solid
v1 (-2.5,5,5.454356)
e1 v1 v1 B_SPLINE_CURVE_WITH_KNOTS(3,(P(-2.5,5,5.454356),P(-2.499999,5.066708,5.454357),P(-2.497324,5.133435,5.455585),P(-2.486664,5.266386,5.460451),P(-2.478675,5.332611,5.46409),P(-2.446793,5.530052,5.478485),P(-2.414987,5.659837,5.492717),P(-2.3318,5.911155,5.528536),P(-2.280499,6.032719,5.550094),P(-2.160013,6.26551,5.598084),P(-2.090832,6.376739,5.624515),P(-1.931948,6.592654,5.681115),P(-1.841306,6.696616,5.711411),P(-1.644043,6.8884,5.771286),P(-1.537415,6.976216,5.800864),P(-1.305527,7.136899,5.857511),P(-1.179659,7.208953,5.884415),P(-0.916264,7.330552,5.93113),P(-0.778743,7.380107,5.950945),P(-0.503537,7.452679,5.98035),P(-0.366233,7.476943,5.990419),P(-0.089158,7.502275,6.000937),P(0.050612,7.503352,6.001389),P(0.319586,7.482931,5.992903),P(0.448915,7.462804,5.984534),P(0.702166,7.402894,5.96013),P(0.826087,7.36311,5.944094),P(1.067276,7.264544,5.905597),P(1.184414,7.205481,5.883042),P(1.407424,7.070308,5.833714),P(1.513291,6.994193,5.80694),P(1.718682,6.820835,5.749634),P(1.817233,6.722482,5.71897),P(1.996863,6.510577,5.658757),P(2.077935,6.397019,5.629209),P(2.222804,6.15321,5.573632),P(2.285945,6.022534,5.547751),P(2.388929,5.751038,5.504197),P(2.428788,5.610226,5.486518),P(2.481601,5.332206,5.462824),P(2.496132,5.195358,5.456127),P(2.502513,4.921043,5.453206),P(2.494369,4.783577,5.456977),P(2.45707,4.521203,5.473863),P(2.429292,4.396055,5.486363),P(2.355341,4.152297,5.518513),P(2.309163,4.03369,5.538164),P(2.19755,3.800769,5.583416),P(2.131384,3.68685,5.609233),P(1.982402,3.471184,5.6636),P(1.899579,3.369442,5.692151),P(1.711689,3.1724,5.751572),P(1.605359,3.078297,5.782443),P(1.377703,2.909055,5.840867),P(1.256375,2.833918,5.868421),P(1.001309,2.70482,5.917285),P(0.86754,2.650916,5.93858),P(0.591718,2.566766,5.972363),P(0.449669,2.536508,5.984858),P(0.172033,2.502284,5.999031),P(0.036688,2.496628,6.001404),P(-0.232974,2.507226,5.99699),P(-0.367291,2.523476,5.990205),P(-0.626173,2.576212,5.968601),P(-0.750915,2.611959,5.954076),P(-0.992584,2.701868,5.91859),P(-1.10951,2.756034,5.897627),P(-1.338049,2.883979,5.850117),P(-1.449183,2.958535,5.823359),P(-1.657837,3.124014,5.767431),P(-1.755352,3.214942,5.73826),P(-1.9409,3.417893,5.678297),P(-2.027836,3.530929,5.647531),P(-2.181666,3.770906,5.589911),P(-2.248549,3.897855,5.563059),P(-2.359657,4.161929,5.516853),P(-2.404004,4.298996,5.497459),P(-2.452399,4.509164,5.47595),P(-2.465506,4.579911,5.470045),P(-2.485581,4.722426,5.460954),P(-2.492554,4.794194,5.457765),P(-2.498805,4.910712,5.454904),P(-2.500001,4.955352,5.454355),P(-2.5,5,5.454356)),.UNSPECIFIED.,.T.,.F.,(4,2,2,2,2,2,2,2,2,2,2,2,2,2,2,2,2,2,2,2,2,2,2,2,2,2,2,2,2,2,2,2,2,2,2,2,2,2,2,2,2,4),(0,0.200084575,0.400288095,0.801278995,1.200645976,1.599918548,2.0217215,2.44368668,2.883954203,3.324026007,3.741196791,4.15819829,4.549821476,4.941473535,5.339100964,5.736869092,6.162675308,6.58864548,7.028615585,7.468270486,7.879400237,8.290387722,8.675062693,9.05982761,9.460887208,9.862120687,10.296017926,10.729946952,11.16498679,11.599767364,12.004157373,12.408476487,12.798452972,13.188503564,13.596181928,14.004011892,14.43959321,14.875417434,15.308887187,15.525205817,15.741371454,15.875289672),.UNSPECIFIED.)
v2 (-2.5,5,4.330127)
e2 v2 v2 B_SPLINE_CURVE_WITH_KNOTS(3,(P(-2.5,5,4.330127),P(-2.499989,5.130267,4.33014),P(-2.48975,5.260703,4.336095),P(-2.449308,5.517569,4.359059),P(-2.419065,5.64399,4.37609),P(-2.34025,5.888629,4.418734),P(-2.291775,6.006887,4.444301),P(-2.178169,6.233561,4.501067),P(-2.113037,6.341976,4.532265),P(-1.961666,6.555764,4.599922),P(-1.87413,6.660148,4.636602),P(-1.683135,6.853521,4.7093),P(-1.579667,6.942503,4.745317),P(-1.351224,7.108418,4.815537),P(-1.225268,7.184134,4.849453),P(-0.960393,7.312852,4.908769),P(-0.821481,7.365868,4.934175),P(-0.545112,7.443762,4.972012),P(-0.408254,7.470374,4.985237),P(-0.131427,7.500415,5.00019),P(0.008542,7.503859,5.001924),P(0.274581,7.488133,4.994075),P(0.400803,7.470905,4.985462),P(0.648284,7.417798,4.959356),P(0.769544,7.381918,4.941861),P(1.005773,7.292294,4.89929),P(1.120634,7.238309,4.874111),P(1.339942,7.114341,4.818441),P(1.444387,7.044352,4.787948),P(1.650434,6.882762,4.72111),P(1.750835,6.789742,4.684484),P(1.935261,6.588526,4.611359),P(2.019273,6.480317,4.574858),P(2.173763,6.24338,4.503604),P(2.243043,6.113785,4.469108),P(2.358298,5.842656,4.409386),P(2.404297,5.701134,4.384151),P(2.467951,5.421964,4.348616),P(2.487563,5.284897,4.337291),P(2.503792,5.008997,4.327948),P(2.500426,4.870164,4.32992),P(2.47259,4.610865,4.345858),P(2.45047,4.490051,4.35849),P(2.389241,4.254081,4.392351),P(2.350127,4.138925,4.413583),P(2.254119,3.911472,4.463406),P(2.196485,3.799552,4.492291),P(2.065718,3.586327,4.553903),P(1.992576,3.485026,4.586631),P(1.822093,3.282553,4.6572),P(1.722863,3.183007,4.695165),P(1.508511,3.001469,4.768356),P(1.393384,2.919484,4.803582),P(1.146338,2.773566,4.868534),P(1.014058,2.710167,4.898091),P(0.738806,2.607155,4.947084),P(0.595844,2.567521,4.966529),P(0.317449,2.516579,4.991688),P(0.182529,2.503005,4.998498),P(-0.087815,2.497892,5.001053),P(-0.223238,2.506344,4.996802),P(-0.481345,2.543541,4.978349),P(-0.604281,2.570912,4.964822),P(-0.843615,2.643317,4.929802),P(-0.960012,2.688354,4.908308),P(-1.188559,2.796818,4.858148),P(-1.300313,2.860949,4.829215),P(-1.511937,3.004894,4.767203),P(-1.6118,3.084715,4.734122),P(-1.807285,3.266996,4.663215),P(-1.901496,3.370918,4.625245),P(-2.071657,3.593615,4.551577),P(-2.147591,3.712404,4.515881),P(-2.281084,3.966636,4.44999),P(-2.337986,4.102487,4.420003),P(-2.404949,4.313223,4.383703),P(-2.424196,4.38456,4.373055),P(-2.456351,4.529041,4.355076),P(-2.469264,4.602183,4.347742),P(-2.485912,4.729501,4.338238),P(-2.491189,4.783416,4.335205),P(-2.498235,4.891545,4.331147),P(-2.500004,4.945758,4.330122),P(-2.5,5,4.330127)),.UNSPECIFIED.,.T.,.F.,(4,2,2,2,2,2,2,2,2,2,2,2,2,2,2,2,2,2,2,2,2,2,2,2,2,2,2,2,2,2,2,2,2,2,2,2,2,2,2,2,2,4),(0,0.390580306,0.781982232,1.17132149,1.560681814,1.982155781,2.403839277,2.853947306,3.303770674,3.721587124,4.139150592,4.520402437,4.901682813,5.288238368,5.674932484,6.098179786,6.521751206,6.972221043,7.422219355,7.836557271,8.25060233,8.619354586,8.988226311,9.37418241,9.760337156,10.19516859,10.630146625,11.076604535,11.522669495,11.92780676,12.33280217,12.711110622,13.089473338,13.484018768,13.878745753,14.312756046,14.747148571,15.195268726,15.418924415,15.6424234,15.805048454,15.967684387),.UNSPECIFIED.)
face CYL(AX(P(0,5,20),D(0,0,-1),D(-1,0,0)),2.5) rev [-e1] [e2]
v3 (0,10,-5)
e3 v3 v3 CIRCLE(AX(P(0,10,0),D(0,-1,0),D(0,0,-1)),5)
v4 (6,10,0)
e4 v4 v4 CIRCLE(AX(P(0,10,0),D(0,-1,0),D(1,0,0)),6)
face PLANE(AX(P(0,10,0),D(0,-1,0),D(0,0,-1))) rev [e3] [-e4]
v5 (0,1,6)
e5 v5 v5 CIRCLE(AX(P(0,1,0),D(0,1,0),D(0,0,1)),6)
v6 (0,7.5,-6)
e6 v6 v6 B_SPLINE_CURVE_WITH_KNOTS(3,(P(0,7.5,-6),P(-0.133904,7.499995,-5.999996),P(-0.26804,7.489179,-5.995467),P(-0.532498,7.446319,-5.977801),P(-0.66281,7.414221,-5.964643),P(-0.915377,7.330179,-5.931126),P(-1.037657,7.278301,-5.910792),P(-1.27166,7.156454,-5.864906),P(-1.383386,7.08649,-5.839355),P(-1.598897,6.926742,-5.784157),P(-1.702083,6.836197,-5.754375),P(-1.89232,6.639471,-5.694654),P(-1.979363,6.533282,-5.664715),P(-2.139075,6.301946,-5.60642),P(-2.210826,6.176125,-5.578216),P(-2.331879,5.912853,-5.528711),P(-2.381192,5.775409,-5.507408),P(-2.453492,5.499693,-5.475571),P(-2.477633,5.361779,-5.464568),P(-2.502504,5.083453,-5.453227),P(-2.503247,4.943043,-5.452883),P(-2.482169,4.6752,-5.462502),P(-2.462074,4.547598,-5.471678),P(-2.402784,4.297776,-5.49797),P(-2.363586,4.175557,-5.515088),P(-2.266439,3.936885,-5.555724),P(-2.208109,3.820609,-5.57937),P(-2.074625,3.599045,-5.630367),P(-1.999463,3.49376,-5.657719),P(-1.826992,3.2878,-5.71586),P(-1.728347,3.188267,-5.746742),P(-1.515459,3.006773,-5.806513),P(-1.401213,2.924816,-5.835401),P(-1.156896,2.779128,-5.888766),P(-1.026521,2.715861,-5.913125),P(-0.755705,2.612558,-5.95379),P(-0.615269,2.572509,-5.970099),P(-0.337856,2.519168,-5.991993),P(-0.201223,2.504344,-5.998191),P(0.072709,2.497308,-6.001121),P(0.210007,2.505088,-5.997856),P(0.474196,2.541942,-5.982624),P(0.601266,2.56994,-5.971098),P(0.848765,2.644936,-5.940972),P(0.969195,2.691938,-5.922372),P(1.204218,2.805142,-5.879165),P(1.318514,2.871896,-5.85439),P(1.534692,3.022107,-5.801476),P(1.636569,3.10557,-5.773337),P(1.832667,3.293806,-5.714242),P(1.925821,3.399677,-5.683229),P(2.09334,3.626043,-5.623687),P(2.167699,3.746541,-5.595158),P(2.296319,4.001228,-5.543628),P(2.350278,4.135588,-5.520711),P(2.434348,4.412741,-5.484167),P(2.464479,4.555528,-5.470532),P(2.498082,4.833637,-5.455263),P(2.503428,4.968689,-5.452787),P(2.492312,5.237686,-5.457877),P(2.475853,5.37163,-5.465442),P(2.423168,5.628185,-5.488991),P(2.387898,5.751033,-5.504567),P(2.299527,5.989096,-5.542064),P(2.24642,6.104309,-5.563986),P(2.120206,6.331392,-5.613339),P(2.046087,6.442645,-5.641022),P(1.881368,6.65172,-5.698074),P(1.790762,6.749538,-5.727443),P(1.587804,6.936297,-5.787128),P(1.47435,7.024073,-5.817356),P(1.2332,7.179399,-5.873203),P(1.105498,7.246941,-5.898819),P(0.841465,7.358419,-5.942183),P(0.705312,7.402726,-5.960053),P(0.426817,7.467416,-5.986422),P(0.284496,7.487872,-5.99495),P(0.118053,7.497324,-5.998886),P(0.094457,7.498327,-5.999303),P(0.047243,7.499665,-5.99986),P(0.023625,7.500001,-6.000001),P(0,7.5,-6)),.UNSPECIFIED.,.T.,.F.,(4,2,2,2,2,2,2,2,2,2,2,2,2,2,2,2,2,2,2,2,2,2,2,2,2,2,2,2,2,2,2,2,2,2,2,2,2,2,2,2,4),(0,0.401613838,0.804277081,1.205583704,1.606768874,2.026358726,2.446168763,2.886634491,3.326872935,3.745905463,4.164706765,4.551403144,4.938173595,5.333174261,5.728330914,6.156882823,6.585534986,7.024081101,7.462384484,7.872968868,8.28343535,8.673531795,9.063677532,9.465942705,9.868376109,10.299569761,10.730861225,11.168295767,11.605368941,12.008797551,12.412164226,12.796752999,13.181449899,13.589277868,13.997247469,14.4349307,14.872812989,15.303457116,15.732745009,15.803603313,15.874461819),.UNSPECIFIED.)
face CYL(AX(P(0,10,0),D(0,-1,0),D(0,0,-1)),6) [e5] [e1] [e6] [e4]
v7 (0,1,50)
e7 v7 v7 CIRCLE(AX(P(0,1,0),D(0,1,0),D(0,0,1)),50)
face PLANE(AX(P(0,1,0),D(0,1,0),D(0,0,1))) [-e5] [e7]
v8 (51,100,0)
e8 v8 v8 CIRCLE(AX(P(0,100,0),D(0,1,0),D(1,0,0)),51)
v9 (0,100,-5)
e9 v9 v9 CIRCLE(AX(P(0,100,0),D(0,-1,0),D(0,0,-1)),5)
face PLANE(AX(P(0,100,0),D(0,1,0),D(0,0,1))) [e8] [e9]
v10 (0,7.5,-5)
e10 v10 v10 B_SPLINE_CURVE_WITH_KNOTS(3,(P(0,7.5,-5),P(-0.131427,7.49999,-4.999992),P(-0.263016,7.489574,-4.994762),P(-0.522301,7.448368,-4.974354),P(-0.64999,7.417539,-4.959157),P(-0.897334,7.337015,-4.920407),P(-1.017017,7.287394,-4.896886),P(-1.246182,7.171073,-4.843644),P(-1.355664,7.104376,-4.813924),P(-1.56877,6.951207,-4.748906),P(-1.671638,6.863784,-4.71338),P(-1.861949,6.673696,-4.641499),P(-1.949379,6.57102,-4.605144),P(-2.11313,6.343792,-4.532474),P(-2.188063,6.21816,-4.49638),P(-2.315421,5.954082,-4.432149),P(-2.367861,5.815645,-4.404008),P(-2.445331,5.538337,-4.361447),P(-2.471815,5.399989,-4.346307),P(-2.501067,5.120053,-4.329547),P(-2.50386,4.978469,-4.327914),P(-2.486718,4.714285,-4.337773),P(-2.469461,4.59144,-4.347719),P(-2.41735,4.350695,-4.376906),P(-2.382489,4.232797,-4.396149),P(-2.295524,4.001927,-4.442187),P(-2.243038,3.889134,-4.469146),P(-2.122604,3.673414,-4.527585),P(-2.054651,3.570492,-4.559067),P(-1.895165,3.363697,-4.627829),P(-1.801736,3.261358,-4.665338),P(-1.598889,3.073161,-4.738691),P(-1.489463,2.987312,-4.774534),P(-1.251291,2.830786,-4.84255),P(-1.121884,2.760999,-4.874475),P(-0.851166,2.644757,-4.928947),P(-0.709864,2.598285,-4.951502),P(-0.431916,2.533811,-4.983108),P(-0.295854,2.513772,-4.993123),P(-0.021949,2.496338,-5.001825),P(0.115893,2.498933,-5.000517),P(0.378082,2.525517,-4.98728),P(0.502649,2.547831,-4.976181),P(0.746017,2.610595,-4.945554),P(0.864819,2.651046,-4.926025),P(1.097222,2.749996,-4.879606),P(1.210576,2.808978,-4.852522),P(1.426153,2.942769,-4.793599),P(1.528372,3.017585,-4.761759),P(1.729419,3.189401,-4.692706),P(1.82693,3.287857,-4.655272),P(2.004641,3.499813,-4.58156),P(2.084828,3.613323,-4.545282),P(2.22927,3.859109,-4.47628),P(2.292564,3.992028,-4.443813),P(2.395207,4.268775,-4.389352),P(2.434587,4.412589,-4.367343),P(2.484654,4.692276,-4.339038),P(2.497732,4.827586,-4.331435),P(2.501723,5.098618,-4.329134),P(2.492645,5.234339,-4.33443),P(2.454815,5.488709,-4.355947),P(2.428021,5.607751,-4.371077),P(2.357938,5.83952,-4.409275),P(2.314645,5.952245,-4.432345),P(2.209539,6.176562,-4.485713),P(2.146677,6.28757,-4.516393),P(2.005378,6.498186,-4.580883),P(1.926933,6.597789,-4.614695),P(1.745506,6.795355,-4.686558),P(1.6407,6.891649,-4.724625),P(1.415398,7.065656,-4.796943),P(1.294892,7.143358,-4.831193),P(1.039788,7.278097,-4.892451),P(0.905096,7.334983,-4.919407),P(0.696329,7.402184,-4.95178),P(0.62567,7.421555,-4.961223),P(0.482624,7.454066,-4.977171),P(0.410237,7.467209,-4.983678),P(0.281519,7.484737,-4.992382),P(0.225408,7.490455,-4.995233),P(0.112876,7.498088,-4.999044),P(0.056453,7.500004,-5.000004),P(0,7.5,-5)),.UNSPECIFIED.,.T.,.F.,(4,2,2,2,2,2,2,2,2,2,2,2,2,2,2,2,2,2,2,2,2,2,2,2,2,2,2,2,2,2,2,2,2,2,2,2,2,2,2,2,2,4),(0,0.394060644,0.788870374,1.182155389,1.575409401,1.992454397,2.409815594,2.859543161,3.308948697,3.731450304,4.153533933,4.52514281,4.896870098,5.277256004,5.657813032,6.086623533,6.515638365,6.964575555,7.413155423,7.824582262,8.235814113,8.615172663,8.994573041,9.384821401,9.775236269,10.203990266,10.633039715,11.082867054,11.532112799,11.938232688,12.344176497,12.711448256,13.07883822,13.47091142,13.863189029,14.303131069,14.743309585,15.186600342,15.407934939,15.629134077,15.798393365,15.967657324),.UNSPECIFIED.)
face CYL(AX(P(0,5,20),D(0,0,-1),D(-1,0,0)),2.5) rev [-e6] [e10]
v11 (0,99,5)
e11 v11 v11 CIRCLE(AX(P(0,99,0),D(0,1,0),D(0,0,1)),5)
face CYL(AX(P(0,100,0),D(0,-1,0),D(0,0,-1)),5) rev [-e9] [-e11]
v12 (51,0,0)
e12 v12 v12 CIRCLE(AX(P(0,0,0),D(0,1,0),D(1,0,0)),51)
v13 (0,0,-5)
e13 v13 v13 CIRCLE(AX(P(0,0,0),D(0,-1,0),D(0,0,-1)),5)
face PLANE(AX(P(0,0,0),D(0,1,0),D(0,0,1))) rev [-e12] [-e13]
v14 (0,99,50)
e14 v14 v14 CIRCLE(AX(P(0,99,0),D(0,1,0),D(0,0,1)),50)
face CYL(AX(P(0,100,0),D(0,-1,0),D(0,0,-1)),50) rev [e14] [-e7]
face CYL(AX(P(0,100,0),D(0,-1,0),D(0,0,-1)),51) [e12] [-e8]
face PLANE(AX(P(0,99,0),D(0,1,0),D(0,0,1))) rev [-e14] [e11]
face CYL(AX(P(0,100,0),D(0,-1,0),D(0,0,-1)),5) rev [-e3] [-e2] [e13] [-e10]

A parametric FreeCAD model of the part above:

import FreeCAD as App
import Part
import Sketcher

V = App.Vector
Q = App.Units.Quantity

doc = App.newDocument("Part")
body = doc.addObject("PartDesign::Body", "Body")

sketch1 = body.newObject("Sketcher::SketchObject", "Sketch")
sketch1.AttachmentSupport = (doc.getObject("XZ_Plane"), [""])
sketch1.MapMode = "FlatFace"
sketch1.addGeometry(Part.Circle(V(0, 0, 0), V(0, 0, 1), 51), False)
sketch1.addGeometry(Part.Circle(V(0, 0, 0), V(0, 0, 1), 50), False)
sketch1.addConstraint(Sketcher.Constraint("Coincident", 0, 3, -1, 1))
sketch1.addConstraint(Sketcher.Constraint("Coincident", 1, 3, -1, 1))
sketch1.addConstraint(Sketcher.Constraint("Diameter", 0, Q("102 mm")))
sketch1.addConstraint(Sketcher.Constraint("Diameter", 1, Q("100 mm")))
pad1 = body.newObject("PartDesign::Pad", "Pad")
pad1.Profile = sketch1
pad1.Length = 100
pad1.Reversed = True

sketch2 = body.newObject("Sketcher::SketchObject", "Sketch001")
sketch2.AttachmentSupport = (doc.getObject("XZ_Plane"), [""])
sketch2.MapMode = "FlatFace"
sketch2.addGeometry(Part.Circle(V(0, 0, 0), V(0, 0, 1), 50), False)
sketch2.addConstraint(Sketcher.Constraint("Coincident", 0, 3, -1, 1))
sketch2.addConstraint(Sketcher.Constraint("Diameter", 0, Q("100 mm")))
pad2 = body.newObject("PartDesign::Pad", "Pad001")
pad2.Profile = sketch2
pad2.Length = 1
pad2.Reversed = True
doc.recompute()

linearpattern = body.newObject("PartDesign::LinearPattern", "LinearPattern")
linearpattern.Originals = [pad2]
linearpattern.Direction = (doc.getObject("Y_Axis"), [""])
linearpattern.Mode = "offset"
linearpattern.Offset = 99
linearpattern.Occurrences = 2
body.Tip = linearpattern

sketch3 = body.newObject("Sketcher::SketchObject", "Sketch002")
sketch3.AttachmentSupport = (doc.getObject("XZ_Plane"), [""])
sketch3.MapMode = "FlatFace"
sketch3.addGeometry(Part.Circle(V(0, 0, 0), V(0, 0, 1), 5), False)
sketch3.addConstraint(Sketcher.Constraint("Coincident", 0, 3, -1, 1))
sketch3.addConstraint(Sketcher.Constraint("Diameter", 0, Q("10 mm")))
pocket1 = body.newObject("PartDesign::Pocket", "Pocket")
pocket1.Profile = sketch3
pocket1.Type = "ThroughAll"

sketch4 = body.newObject("Sketcher::SketchObject", "Sketch003")
sketch4.AttachmentSupport = (doc.getObject("XZ_Plane"), [""])
sketch4.MapMode = "FlatFace"
sketch4.addGeometry(Part.Circle(V(0, 0, 0), V(0, 0, 1), 6), False)
sketch4.addGeometry(Part.Circle(V(0, 0, 0), V(0, 0, 1), 5), False)
sketch4.addConstraint(Sketcher.Constraint("Coincident", 0, 3, -1, 1))
sketch4.addConstraint(Sketcher.Constraint("Coincident", 1, 3, -1, 1))
sketch4.addConstraint(Sketcher.Constraint("Diameter", 0, Q("12 mm")))
sketch4.addConstraint(Sketcher.Constraint("Diameter", 1, Q("10 mm")))
pad3 = body.newObject("PartDesign::Pad", "Pad002")
pad3.Profile = sketch4
pad3.Length = 10
pad3.Reversed = True

sketch5 = body.newObject("Sketcher::SketchObject", "Sketch004")
sketch5.AttachmentSupport = (doc.getObject("XY_Plane"), [""])
sketch5.MapMode = "FlatFace"
sketch5.addGeometry(Part.Circle(V(0, 5, 0), V(0, 0, 1), 2.5), False)
sketch5.addConstraint(Sketcher.Constraint("PointOnObject", 0, 3, -2))
sketch5.addConstraint(Sketcher.Constraint("Diameter", 0, Q("5 mm")))
sketch5.addConstraint(Sketcher.Constraint("DistanceY", -1, 1, 0, 3, Q("5 mm")))
pocket2 = body.newObject("PartDesign::Pocket", "Pocket001")
pocket2.Profile = sketch5
pocket2.Type = "TwoLengths"
pocket2.Length = 20
pocket2.Length2 = 20
pocket2.Reversed = True

doc.recompute()
